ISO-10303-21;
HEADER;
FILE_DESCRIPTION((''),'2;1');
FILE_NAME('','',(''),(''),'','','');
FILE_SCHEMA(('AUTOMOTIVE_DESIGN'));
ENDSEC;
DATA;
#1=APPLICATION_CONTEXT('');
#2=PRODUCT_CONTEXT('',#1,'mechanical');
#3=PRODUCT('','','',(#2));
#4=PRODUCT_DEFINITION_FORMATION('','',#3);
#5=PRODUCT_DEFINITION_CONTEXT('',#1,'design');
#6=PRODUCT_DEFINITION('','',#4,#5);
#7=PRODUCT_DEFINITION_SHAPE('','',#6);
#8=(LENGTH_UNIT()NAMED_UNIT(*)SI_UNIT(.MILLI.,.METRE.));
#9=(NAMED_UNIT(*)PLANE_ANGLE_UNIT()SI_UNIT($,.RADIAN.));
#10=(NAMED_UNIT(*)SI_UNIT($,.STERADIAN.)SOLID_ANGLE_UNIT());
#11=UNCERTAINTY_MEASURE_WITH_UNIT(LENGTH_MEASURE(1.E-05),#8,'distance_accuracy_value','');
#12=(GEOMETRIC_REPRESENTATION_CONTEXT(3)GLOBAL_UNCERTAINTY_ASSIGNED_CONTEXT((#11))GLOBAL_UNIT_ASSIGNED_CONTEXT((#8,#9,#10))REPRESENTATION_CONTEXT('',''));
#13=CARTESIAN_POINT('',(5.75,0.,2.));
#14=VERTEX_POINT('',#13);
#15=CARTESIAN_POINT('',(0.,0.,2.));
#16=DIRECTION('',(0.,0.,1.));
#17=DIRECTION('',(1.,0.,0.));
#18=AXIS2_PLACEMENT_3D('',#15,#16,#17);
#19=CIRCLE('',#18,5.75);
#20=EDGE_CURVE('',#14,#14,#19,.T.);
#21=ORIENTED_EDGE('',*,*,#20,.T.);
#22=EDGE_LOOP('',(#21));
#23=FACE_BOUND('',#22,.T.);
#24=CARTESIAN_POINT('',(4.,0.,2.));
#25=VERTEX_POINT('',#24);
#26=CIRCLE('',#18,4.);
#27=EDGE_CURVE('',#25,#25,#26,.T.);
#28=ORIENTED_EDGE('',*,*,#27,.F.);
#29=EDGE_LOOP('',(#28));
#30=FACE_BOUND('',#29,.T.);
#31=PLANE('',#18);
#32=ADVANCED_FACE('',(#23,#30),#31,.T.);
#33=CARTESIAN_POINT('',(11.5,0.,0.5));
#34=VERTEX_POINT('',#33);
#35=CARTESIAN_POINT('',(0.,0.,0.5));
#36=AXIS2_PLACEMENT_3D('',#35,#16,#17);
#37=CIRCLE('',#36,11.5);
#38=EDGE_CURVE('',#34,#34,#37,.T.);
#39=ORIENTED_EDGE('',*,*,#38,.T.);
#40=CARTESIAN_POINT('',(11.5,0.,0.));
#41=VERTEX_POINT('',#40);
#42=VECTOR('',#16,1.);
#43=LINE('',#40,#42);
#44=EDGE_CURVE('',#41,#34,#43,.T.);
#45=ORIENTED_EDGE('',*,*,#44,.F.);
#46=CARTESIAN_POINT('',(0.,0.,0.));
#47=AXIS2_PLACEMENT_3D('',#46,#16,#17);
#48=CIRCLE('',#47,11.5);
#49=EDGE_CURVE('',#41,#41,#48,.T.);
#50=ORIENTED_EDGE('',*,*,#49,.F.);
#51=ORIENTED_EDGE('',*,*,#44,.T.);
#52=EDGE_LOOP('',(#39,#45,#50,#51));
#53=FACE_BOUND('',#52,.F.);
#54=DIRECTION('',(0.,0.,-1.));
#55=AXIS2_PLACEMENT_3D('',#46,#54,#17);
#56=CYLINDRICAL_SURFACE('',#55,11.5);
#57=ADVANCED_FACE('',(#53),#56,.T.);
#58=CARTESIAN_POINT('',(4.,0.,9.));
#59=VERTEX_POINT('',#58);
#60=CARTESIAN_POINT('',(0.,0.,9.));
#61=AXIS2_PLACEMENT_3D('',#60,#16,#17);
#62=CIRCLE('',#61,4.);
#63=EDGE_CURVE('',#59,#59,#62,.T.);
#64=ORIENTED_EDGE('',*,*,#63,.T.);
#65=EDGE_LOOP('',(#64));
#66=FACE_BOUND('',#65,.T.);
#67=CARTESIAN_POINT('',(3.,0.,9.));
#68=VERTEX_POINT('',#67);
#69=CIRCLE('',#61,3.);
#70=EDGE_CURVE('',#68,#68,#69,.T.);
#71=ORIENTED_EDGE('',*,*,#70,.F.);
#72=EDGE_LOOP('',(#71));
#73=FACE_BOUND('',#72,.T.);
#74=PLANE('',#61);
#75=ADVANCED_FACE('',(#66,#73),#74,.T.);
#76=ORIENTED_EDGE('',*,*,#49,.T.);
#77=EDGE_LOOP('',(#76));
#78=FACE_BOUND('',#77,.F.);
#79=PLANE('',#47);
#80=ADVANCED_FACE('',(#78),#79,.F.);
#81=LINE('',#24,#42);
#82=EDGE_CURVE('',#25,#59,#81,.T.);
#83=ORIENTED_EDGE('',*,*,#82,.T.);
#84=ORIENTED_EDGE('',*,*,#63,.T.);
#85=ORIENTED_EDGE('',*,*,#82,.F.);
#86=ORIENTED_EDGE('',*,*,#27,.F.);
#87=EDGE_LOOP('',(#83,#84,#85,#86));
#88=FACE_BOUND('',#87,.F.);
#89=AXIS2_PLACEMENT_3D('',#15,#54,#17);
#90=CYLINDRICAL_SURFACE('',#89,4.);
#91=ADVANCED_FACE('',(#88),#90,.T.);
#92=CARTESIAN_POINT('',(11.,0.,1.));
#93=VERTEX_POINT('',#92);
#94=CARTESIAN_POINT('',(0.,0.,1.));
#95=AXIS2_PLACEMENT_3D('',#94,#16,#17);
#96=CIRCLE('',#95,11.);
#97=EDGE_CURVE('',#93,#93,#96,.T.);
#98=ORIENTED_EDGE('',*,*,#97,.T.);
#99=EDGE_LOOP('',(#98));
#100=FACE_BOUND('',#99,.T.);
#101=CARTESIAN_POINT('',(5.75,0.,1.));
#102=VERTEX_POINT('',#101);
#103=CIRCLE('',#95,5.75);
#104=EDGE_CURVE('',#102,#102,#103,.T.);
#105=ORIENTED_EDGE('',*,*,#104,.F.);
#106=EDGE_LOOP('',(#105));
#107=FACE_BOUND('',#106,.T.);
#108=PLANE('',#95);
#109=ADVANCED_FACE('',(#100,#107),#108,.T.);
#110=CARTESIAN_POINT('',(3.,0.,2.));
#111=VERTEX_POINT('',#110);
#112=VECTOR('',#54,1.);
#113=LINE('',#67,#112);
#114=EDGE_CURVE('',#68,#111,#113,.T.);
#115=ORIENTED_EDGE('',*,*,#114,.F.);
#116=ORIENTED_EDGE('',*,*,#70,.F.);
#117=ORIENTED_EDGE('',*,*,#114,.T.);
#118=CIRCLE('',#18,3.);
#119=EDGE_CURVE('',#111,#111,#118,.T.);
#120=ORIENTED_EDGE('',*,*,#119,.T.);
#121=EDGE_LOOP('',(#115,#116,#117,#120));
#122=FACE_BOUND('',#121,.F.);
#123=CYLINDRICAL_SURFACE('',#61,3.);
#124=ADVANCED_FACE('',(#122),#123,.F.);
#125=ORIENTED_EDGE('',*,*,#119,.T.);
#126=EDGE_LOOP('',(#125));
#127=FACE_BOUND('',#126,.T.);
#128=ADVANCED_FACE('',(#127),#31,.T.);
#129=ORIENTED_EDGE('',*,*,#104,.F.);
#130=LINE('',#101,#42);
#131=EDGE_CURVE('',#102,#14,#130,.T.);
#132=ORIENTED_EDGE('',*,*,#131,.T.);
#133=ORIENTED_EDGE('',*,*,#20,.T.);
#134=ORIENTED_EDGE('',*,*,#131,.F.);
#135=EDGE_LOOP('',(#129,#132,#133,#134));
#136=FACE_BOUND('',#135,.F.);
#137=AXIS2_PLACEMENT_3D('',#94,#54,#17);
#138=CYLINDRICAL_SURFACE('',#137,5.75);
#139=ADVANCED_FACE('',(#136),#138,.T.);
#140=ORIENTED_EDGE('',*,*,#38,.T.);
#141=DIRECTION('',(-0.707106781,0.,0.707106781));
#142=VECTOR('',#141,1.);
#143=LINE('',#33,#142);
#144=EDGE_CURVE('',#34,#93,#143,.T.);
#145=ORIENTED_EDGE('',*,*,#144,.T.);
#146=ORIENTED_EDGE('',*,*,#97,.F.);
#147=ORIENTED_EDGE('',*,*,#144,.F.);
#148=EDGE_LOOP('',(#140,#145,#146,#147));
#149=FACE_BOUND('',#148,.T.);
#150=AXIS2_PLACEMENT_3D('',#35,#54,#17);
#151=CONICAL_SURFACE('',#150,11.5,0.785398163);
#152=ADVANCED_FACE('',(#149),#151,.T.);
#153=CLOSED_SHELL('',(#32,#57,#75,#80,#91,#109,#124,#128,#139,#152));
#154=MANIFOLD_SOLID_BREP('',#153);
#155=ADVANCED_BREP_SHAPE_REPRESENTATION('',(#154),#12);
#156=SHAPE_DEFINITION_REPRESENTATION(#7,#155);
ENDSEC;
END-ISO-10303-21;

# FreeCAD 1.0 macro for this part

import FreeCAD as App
import Part
import Sketcher
from FreeCAD import Vector
Q = App.Units.Quantity


def edges_at(feature, points):
    """Names of the edges that pass closest to the given points."""
    edges = feature.Shape.Edges
    near = lambda p: min(range(len(edges)), key=lambda i: edges[i].distToShape(Part.Vertex(*p))[0])
    return sorted({f"Edge{near(p) + 1}" for p in points})

doc = App.newDocument("Part")
body = doc.addObject("PartDesign::Body", "Body")

sketch1 = body.newObject("Sketcher::SketchObject", "Sketch")
sketch1.AttachmentSupport = (doc.getObject("XY_Plane"), [""])
sketch1.MapMode = "FlatFace"
sketch1.addGeometry(Part.Circle(Vector(0, 0, 0), Vector(0, 0, 1), 12), False)
sketch1.addConstraint([
    Sketcher.Constraint("Coincident", 0, 3, -1, 1),
    Sketcher.Constraint("Diameter", 0, Q("23 mm")),
])
pad1 = body.newObject("PartDesign::Pad", "Pad")
pad1.Profile = sketch1
pad1.Length = 1

sketch2 = body.newObject("Sketcher::SketchObject", "Sketch001")
sketch2.AttachmentSupport = (doc.getObject("XY_Plane"), [""])
sketch2.MapMode = "FlatFace"
sketch2.AttachmentOffset = App.Placement(Vector(0, 0, 1), App.Rotation())
sketch2.addGeometry(Part.Circle(Vector(0, 0, 0), Vector(0, 0, 1), 6), False)
sketch2.addConstraint([
    Sketcher.Constraint("Coincident", 0, 3, -1, 1),
    Sketcher.Constraint("Diameter", 0, Q("11.5 mm")),
])
pad2 = body.newObject("PartDesign::Pad", "Pad001")
pad2.Profile = sketch2
pad2.Length = 1

sketch3 = body.newObject("Sketcher::SketchObject", "Sketch002")
sketch3.AttachmentSupport = (doc.getObject("XY_Plane"), [""])
sketch3.MapMode = "FlatFace"
sketch3.AttachmentOffset = App.Placement(Vector(0, 0, 2), App.Rotation())
sketch3.addGeometry(Part.Circle(Vector(0, 0, 0), Vector(0, 0, 1), 4), False)
sketch3.addConstraint([
    Sketcher.Constraint("Coincident", 0, 3, -1, 1),
    Sketcher.Constraint("Diameter", 0, Q("8 mm")),
])
pad3 = body.newObject("PartDesign::Pad", "Pad002")
pad3.Profile = sketch3
pad3.Length = 7

sketch4 = body.newObject("Sketcher::SketchObject", "Sketch003")
sketch4.AttachmentSupport = (doc.getObject("XY_Plane"), [""])
sketch4.MapMode = "FlatFace"
sketch4.AttachmentOffset = App.Placement(Vector(0, 0, 9), App.Rotation())
sketch4.addGeometry(Part.Circle(Vector(0, 0, 0), Vector(0, 0, 1), 3), False)
sketch4.addConstraint([
    Sketcher.Constraint("Coincident", 0, 3, -1, 1),
    Sketcher.Constraint("Diameter", 0, Q("6 mm")),
])
pocket1 = body.newObject("PartDesign::Pocket", "Pocket")
pocket1.Profile = sketch4
pocket1.Length = 7
doc.recompute()

chamfer = body.newObject("PartDesign::Chamfer", "Chamfer")
chamfer.Base = (pocket1, edges_at(pocket1, [(-11.5, 0, 1)]))
chamfer.Size = 0.5

doc.recompute()
